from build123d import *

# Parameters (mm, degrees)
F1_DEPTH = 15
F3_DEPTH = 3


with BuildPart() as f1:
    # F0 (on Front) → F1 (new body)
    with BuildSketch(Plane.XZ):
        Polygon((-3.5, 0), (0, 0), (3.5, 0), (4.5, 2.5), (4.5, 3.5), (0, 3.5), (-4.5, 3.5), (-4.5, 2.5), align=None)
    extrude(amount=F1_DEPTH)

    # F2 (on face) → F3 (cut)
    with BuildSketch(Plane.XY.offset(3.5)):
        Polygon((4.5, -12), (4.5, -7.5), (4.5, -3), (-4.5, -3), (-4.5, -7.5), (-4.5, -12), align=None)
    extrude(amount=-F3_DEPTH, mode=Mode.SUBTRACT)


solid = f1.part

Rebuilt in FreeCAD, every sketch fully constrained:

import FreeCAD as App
import Part
import Sketcher
from FreeCAD import Vector

doc = App.newDocument("Part")
params = doc.addObject("Spreadsheet::Sheet", "Params")
for row, (alias, value) in enumerate([
    ("sketch1_width", "7 mm"),
    ("sketch1_width2", "9 mm"),
    ("sketch1_height", "1 mm"),
    ("pad1_length", "15 mm"),
    ("sketch2_width", "9 mm"),
    ("pocket1_length", "3 mm"),
], start=1):
    params.set(f"A{row}", alias)
    params.set(f"B{row}", "=" + value)
    params.setAlias(f"B{row}", alias)

body = doc.addObject("PartDesign::Body", "Body")

# Sketch on XZ plane
sketch1 = body.newObject("Sketcher::SketchObject", "Sketch")
sketch1.AttachmentSupport = (doc.getObject("XZ_Plane"), [""])
sketch1.MapMode = "FlatFace"
sketch1.addGeometry([
    Part.LineSegment(Vector(-3.5, 0, 0), Vector(3.5, 0, 0)),  # 0
    Part.LineSegment(Vector(3.5, 0, 0), Vector(4.5, 2.5, 0)),  # 1
    Part.LineSegment(Vector(4.5, 2.5, 0), Vector(4.5, 3.5, 0)),  # 2
    Part.LineSegment(Vector(4.5, 3.5, 0), Vector(-4.5, 3.5, 0)),  # 3
    Part.LineSegment(Vector(-4.5, 3.5, 0), Vector(-4.5, 2.5, 0)),  # 4
    Part.LineSegment(Vector(-4.5, 2.5, 0), Vector(-3.5, 0, 0)),  # 5
], False)
sketch1.addConstraint([
    Sketcher.Constraint("Coincident", 0, 2, 1, 1),
    Sketcher.Constraint("Coincident", 1, 2, 2, 1),
    Sketcher.Constraint("Coincident", 2, 2, 3, 1),
    Sketcher.Constraint("Coincident", 3, 2, 4, 1),
    Sketcher.Constraint("Coincident", 4, 2, 5, 1),
    Sketcher.Constraint("Coincident", 5, 2, 0, 1),
    Sketcher.Constraint("Horizontal", 0),
    Sketcher.Constraint("Vertical", 2),
    Sketcher.Constraint("Horizontal", 3),
    Sketcher.Constraint("Vertical", 4),
    Sketcher.Constraint("Symmetric", 0, 2, 5, 2, -1, 1),
    Sketcher.Constraint("Symmetric", 1, 2, 4, 2, -2),
    Sketcher.Constraint("DistanceX", 0, 1, 0, 2, 7.0),
    Sketcher.Constraint("DistanceX", 3, 2, 3, 1, 9.0),
    Sketcher.Constraint("DistanceY", 2, 1, 2, 2, 1.0),
    Sketcher.Constraint("DistanceY", -1, 1, 1, 2, 2.5),
])
sketch1.setExpression("Constraints[12]", "Params.sketch1_width")
sketch1.setExpression("Constraints[13]", "Params.sketch1_width2")
sketch1.setExpression("Constraints[14]", "Params.sketch1_height")
pad1 = body.newObject("PartDesign::Pad", "Pad")
pad1.Profile = sketch1
pad1.setExpression("Length", "Params.pad1_length")

# Sketch on XY plane
sketch2 = body.newObject("Sketcher::SketchObject", "Sketch001")
sketch2.AttachmentSupport = (doc.getObject("XY_Plane"), [""])
sketch2.MapMode = "FlatFace"
sketch2.AttachmentOffset = App.Placement(Vector(0, 0, 3.5), App.Rotation())
sketch2.addGeometry([
    Part.LineSegment(Vector(4.5, -12, 0), Vector(4.5, -3, 0)),
    Part.LineSegment(Vector(4.5, -3, 0), Vector(-4.5, -3, 0)),
    Part.LineSegment(Vector(-4.5, -3, 0), Vector(-4.5, -12, 0)),
    Part.LineSegment(Vector(-4.5, -12, 0), Vector(4.5, -12, 0)),
], False)
sketch2.addConstraint([
    Sketcher.Constraint("Coincident", 0, 2, 1, 1),
    Sketcher.Constraint("Coincident", 1, 2, 2, 1),
    Sketcher.Constraint("Coincident", 2, 2, 3, 1),
    Sketcher.Constraint("Coincident", 3, 2, 0, 1),
    Sketcher.Constraint("Vertical", 0),
    Sketcher.Constraint("Horizontal", 1),
    Sketcher.Constraint("Vertical", 2),
    Sketcher.Constraint("Horizontal", 3),
    Sketcher.Constraint("Equal", 3, 0),
    Sketcher.Constraint("DistanceX", 1, 2, 1, 1, 9.0),
    Sketcher.Constraint("DistanceY", 0, 2, -1, 1, 3.0),
    Sketcher.Constraint("DistanceX", -1, 1, 0, 2, 4.5),
])
sketch2.setExpression("Constraints[9]", "Params.sketch2_width")
pocket1 = body.newObject("PartDesign::Pocket", "Pocket")
pocket1.Profile = sketch2
pocket1.setExpression("Length", "Params.pocket1_length")

doc.recompute()
